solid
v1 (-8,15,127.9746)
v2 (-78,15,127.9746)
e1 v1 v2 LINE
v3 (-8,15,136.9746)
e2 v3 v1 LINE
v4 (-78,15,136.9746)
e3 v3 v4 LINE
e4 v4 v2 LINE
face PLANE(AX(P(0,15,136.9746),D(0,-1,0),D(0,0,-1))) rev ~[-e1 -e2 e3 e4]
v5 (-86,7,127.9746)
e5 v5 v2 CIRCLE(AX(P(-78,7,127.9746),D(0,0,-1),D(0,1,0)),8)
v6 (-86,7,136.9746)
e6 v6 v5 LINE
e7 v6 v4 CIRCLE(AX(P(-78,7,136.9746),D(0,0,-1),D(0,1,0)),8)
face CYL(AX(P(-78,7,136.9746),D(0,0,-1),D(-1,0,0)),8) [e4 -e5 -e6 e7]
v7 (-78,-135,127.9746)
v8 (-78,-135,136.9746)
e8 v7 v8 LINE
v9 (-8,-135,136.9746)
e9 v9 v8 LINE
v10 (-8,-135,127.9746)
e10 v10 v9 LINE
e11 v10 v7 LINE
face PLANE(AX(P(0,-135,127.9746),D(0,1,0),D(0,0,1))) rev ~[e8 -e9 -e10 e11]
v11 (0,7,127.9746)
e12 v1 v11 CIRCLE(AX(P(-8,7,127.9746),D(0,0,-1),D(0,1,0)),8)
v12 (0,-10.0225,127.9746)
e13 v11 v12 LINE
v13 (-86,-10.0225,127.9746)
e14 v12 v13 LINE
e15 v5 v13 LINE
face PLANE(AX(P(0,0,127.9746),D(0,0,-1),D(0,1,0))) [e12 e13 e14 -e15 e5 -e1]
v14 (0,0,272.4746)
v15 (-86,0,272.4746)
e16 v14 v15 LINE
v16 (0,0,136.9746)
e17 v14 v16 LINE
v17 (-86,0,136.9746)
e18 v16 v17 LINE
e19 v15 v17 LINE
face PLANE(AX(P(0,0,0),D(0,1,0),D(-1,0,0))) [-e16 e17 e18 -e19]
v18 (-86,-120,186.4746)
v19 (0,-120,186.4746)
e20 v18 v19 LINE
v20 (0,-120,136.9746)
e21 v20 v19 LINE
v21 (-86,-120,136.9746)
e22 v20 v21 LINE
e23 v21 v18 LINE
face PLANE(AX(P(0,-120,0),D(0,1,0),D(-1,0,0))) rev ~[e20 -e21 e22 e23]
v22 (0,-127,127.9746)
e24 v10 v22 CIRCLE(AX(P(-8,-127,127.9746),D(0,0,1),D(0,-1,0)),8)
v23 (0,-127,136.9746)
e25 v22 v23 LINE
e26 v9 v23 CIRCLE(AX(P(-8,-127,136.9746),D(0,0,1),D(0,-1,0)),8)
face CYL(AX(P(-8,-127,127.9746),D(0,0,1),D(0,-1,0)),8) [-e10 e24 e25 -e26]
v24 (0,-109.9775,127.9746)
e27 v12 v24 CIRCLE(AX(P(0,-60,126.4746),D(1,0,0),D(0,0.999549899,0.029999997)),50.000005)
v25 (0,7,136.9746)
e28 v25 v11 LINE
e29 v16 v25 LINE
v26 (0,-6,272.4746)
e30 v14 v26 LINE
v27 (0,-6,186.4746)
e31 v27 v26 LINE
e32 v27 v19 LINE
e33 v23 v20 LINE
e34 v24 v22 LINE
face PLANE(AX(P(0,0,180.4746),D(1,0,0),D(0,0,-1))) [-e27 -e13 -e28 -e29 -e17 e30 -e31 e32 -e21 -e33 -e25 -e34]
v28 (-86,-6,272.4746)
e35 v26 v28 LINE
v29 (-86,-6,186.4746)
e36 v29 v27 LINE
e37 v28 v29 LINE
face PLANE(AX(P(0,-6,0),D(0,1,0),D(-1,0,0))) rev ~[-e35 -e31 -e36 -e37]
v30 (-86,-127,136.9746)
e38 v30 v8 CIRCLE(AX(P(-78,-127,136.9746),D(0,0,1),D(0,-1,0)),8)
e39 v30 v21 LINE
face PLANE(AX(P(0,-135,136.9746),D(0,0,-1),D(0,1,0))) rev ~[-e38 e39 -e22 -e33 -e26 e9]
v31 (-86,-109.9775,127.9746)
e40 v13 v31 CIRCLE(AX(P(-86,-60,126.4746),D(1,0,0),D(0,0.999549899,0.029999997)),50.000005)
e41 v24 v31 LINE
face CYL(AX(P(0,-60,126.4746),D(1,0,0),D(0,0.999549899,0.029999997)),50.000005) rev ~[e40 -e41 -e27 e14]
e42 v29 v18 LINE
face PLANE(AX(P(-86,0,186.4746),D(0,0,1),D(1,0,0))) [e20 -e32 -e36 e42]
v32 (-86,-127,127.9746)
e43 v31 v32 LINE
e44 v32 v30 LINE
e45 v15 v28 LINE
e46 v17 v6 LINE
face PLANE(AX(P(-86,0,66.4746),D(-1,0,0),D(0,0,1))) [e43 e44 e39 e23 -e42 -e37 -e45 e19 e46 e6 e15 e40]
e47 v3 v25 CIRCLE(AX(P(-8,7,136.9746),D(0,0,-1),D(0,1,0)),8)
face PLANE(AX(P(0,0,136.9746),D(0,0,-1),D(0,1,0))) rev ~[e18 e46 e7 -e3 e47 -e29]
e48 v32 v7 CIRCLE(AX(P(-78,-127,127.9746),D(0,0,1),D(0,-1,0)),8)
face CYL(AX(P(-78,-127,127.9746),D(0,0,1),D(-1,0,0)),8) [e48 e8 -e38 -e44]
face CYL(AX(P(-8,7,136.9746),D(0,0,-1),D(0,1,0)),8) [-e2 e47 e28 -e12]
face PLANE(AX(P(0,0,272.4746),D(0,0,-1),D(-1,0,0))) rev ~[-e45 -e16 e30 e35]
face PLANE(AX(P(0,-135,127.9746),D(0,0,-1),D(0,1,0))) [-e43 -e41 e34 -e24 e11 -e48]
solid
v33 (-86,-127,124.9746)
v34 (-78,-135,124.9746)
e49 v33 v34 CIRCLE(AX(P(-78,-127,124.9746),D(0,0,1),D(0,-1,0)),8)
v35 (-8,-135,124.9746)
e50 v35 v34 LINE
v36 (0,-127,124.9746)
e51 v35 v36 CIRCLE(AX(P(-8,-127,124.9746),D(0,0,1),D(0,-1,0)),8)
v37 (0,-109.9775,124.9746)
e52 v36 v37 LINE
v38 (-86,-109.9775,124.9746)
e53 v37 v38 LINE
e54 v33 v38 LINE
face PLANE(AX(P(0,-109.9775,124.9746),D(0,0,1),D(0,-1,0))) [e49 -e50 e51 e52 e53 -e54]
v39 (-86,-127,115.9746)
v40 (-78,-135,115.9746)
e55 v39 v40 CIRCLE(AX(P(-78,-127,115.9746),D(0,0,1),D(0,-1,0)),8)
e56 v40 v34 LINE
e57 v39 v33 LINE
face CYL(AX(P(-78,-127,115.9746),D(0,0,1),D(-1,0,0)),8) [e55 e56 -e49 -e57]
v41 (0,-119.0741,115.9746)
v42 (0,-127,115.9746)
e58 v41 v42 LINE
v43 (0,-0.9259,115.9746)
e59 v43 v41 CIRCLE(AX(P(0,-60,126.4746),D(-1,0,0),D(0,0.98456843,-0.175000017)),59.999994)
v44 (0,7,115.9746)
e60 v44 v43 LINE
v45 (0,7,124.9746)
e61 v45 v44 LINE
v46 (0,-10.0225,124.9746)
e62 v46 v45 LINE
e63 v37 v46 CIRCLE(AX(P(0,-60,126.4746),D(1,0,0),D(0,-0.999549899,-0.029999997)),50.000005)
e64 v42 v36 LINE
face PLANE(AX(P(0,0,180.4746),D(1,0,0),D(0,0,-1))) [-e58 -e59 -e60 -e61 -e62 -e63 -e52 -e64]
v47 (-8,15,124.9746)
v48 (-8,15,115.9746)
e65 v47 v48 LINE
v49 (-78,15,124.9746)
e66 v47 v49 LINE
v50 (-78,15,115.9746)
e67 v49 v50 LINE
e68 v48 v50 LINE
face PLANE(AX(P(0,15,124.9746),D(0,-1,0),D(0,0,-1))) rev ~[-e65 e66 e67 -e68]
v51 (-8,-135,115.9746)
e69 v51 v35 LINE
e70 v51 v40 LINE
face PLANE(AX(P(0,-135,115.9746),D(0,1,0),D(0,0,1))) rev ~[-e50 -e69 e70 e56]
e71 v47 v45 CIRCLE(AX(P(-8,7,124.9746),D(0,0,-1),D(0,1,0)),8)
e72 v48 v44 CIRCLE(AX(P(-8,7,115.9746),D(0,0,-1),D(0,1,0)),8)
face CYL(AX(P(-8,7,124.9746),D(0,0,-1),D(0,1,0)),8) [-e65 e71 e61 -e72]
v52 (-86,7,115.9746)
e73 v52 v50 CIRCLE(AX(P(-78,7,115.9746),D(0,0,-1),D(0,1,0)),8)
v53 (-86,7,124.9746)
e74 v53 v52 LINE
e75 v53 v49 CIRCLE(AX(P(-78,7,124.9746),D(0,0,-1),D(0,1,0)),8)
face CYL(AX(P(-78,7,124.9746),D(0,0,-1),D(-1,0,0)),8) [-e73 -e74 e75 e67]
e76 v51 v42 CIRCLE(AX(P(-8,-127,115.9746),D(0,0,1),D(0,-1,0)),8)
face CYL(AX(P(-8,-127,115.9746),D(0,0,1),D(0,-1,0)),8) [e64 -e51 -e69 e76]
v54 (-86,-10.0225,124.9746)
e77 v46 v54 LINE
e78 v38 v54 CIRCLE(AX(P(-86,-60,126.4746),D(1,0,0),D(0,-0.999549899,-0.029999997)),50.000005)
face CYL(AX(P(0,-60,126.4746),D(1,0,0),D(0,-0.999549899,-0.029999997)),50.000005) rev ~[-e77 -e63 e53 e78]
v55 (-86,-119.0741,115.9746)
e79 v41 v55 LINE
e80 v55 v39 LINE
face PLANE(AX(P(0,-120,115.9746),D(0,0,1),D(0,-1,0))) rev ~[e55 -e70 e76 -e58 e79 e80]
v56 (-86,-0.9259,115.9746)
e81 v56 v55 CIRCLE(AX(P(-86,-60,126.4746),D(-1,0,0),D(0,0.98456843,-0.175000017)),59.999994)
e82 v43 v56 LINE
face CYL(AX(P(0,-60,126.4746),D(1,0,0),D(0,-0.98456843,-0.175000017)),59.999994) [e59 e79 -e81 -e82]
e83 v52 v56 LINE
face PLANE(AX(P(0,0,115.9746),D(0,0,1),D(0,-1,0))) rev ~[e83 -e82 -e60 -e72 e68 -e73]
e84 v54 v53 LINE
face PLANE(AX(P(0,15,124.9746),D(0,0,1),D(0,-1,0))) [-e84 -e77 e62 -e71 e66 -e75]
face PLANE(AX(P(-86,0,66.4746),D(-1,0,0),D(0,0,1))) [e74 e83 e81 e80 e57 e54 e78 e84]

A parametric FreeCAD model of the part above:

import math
import FreeCAD as App
import Part
import Sketcher

V = App.Vector


def edges_at(feature, points):
    """Names of the edges that pass closest to the given points."""
    edges = feature.Shape.Edges
    near = lambda p: min(range(len(edges)), key=lambda i: edges[i].distToShape(Part.Vertex(*p))[0])
    return sorted({f"Edge{near(p) + 1}" for p in points})


def add_polygon(sketch, points):
    """Adds a closed chain of lines whose ends are joined by coincident constraints."""
    first, n = sketch.GeometryCount, len(points)
    for a, b in zip(points, points[1:] + points[:1]):
        sketch.addGeometry(Part.LineSegment(App.Vector(*a, 0), App.Vector(*b, 0)), False)
    for i in range(n):
        sketch.addConstraint(Sketcher.Constraint("Coincident", first + i, 2, first + (i + 1) % n, 1))

doc = App.newDocument("Part")
body = doc.addObject("PartDesign::Body", "Body")
body.AllowCompound = True

# Sketch on XZ plane
sketch1 = doc.addObject("Sketcher::SketchObject", "Sketch")
body.addObject(sketch1)
sketch1.AttachmentSupport = (doc.XZ_Plane, [""])
sketch1.MapMode = "FlatFace"
add_polygon(sketch1, [(-86, 272), (0, 272), (0, 186), (-86, 186)])  # lines 0-3
sketch1.addConstraint([
    Sketcher.Constraint("Horizontal", 0),
    Sketcher.Constraint("Vertical", 1),
    Sketcher.Constraint("Horizontal", 2),
    Sketcher.Constraint("Vertical", 3),
    Sketcher.Constraint("PointOnObject", 0, 2, -2),
    Sketcher.Constraint("Equal", 2, 1),
    Sketcher.Constraint("DistanceX", 0, 1, 0, 2, 86.0),
    Sketcher.Constraint("DistanceY", -1, 1, 0, 2, 272.4746),
])
pad1 = doc.addObject("PartDesign::Pad", "Pad")
body.addObject(pad1)
pad1.Profile = sketch1
pad1.Length = 6

# Sketch on XZ plane
sketch2 = doc.addObject("Sketcher::SketchObject", "Sketch001")
body.addObject(sketch2)
sketch2.AttachmentSupport = (doc.XZ_Plane, [""])
sketch2.MapMode = "FlatFace"
add_polygon(sketch2, [(-86, 186), (0, 186), (0, 180), (-86, 180)])  # lines 0-3
sketch2.addConstraint([
    Sketcher.Constraint("Horizontal", 0),
    Sketcher.Constraint("Vertical", 1),
    Sketcher.Constraint("Horizontal", 2),
    Sketcher.Constraint("Vertical", 3),
    Sketcher.Constraint("PointOnObject", 0, 2, -2),
    Sketcher.Constraint("DistanceX", 0, 1, 0, 2, 86.0),
    Sketcher.Constraint("DistanceY", 1, 2, 1, 1, 6.0),
    Sketcher.Constraint("DistanceY", -1, 1, 0, 2, 186.4746),
])
pad2 = doc.addObject("PartDesign::Pad", "Pad001")
body.addObject(pad2)
pad2.Profile = sketch2
pad2.Length = 120

# Sketch on XZ plane
sketch3 = doc.addObject("Sketcher::SketchObject", "Sketch002")
body.addObject(sketch3)
sketch3.AttachmentSupport = (doc.XZ_Plane, [""])
sketch3.MapMode = "FlatFace"
add_polygon(sketch3, [(-86, 180), (0, 180), (0, 66), (-86, 66)])  # lines 0-3
sketch3.addConstraint([
    Sketcher.Constraint("Horizontal", 0),
    Sketcher.Constraint("Vertical", 1),
    Sketcher.Constraint("Horizontal", 2),
    Sketcher.Constraint("Vertical", 3),
    Sketcher.Constraint("PointOnObject", 0, 2, -2),
    Sketcher.Constraint("DistanceX", 0, 1, 0, 2, 86.0),
    Sketcher.Constraint("DistanceY", 1, 2, 1, 1, 114.0),
    Sketcher.Constraint("DistanceY", -1, 1, 0, 2, 180.4746),
])
pad3 = doc.addObject("PartDesign::Pad", "Pad002")
body.addObject(pad3)
pad3.Profile = sketch3
pad3.Length = 120

# Sketch on YZ plane
sketch4 = doc.addObject("Sketcher::SketchObject", "Sketch003")
body.addObject(sketch4)
sketch4.AttachmentSupport = (doc.YZ_Plane, [""])
sketch4.MapMode = "FlatFace"
add_polygon(sketch4, [(15, 128), (15, 137), (0, 137), (0, 128)])  # lines 0-3
add_polygon(sketch4, [(15, 116), (15, 125), (0, 125), (0, 116)])  # lines 4-7
add_polygon(sketch4, [(-120, 128), (-120, 137), (-135, 137), (-135, 128)])  # lines 8-11
add_polygon(sketch4, [(-120, 116), (-120, 125), (-135, 125), (-135, 116)])  # lines 12-15
sketch4.addConstraint([
    Sketcher.Constraint("Vertical", 0),
    Sketcher.Constraint("Horizontal", 1),
    Sketcher.Constraint("Vertical", 2),
    Sketcher.Constraint("Horizontal", 3),
    Sketcher.Constraint("Vertical", 4),
    Sketcher.Constraint("Horizontal", 5),
    Sketcher.Constraint("Vertical", 6),
    Sketcher.Constraint("Horizontal", 7),
    Sketcher.Constraint("Vertical", 8),
    Sketcher.Constraint("Horizontal", 9),
    Sketcher.Constraint("Vertical", 10),
    Sketcher.Constraint("Horizontal", 11),
    Sketcher.Constraint("Vertical", 12),
    Sketcher.Constraint("Horizontal", 13),
    Sketcher.Constraint("Vertical", 14),
    Sketcher.Constraint("Horizontal", 15),
    Sketcher.Constraint("PointOnObject", 1, 2, -2),
    Sketcher.Constraint("PointOnObject", 5, 2, -2),
    Sketcher.Constraint("Horizontal", 1, 2, 8, 2),
    Sketcher.Constraint("Horizontal", 3, 2, 10, 2),
    Sketcher.Constraint("Horizontal", 5, 2, 12, 2),
    Sketcher.Constraint("Horizontal", 7, 2, 14, 2),
    Sketcher.Constraint("Vertical", 3, 2, 4, 2),
    Sketcher.Constraint("Vertical", 11, 2, 12, 2),
    Sketcher.Constraint("Vertical", 10, 2, 13, 2),
    Sketcher.Constraint("Equal", 7, 9),
    Sketcher.Constraint("Equal", 2, 4),
    Sketcher.Constraint("DistanceX", 1, 2, 1, 1, 15.0),
    Sketcher.Constraint("DistanceY", 0, 1, 0, 2, 9.0),
    Sketcher.Constraint("DistanceX", 8, 2, -1, 1, 120.0),
    Sketcher.Constraint("DistanceY", 4, 2, 3, 2, 3.0),
    Sketcher.Constraint("DistanceY", -1, 1, 0, 2, 136.9746),
])
pad4 = doc.addObject("PartDesign::Pad", "Pad003")
body.addObject(pad4)
pad4.Profile = sketch4
pad4.Length = 86
pad4.Reversed = True

# Sketch on YZ plane
sketch5 = doc.addObject("Sketcher::SketchObject", "Sketch004")
body.addObject(sketch5)
sketch5.AttachmentSupport = (doc.YZ_Plane, [""])
sketch5.MapMode = "FlatFace"
sketch5.addGeometry([
    Part.LineSegment(V(15, 125, 0), V(15, 128, 0)),  # 0
    Part.LineSegment(V(15, 128, 0), V(-10, 128, 0)),  # 1
    Part.ArcOfCircle(Part.Circle(V(-60, 126.5, 0), V(0, 0, 1), 50), math.radians(2), math.radians(178)),  # 2
    Part.LineSegment(V(-110, 128, 0), V(-135, 128, 0)),  # 3
    Part.LineSegment(V(-135, 128, 0), V(-135, 125, 0)),  # 4
    Part.LineSegment(V(-135, 125, 0), V(-110, 125, 0)),  # 5
    Part.ArcOfCircle(Part.Circle(V(-60, 126.5, 0), V(0, 0, 1), 50), math.radians(-178), math.radians(-2)),  # 6
    Part.LineSegment(V(-10, 125, 0), V(15, 125, 0)),  # 7
    Part.LineSegment(V(0, 66.5, 0), V(0, 116, 0)),  # 8
    Part.LineSegment(V(0, 116, 0), V(-0.9, 116, 0)),  # 9
    Part.ArcOfCircle(Part.Circle(V(-60, 126.5, 0), V(0, 0, 1), 60), math.radians(-90), math.radians(-10)),  # 10
    Part.LineSegment(V(-60, 66.5, 0), V(0, 66.5, 0)),  # 11
    Part.LineSegment(V(-120, 66.5, 0), V(-60, 66.5, 0)),  # 12
    Part.ArcOfCircle(Part.Circle(V(-60, 126.5, 0), V(0, 0, 1), 60), math.radians(-170), math.radians(-90)),  # 13
    Part.LineSegment(V(-119.1, 116, 0), V(-120, 116, 0)),  # 14
    Part.LineSegment(V(-120, 116, 0), V(-120, 66.5, 0)),  # 15
], False)
sketch5.addConstraint([
    Sketcher.Constraint("Coincident", 0, 2, 1, 1),
    Sketcher.Constraint("Coincident", 1, 2, 2, 1),
    Sketcher.Constraint("Coincident", 2, 2, 3, 1),
    Sketcher.Constraint("Coincident", 3, 2, 4, 1),
    Sketcher.Constraint("Coincident", 4, 2, 5, 1),
    Sketcher.Constraint("Coincident", 5, 2, 6, 1),
    Sketcher.Constraint("Coincident", 6, 2, 7, 1),
    Sketcher.Constraint("Coincident", 7, 2, 0, 1),
    Sketcher.Constraint("Coincident", 8, 2, 9, 1),
    Sketcher.Constraint("Coincident", 9, 2, 10, 2),
    Sketcher.Constraint("Tangent", 10, 1, 11, 1),
    Sketcher.Constraint("Coincident", 11, 2, 8, 1),
    Sketcher.Constraint("Tangent", 12, 2, 13, 2),
    Sketcher.Constraint("Coincident", 13, 1, 14, 1),
    Sketcher.Constraint("Coincident", 14, 2, 15, 1),
    Sketcher.Constraint("Coincident", 15, 2, 12, 1),
    Sketcher.Constraint("Vertical", 0),
    Sketcher.Constraint("Horizontal", 1),
    Sketcher.Constraint("Horizontal", 3),
    Sketcher.Constraint("Vertical", 4),
    Sketcher.Constraint("Horizontal", 5),
    Sketcher.Constraint("Horizontal", 7),
    Sketcher.Constraint("Vertical", 8),
    Sketcher.Constraint("Horizontal", 9),
    Sketcher.Constraint("Horizontal", 11),
    Sketcher.Constraint("Horizontal", 12),
    Sketcher.Constraint("Horizontal", 14),
    Sketcher.Constraint("Vertical", 15),
    Sketcher.Constraint("Coincident", 6, 3, 2, 3),
    Sketcher.Constraint("Coincident", 10, 3, 2, 3),
    Sketcher.Constraint("Coincident", 13, 3, 2, 3),
    Sketcher.Constraint("Equal", 2, 6),
    Sketcher.Constraint("Equal", 10, 13),
    Sketcher.Constraint("PointOnObject", 8, 2, -2),
    Sketcher.Constraint("Horizontal", 1, 2, 2, 2),
    Sketcher.Constraint("Horizontal", 5, 2, 6, 2),
    Sketcher.Constraint("Horizontal", 9, 2, 13, 1),
    Sketcher.Constraint("Vertical", 2, 2, 5, 2),
    Sketcher.Constraint("Equal", 1, 3),
    Sketcher.Constraint("Equal", 11, 12),
    Sketcher.Constraint("Radius", 2, 50.0),
    Sketcher.Constraint("Radius", 10, 60.0),
    Sketcher.Constraint("DistanceX", 11, 1, 11, 2, 60.0),
    Sketcher.Constraint("DistanceY", 0, 1, 0, 2, 3.0),
    Sketcher.Constraint("DistanceY", 8, 1, 8, 2, 49.5),
    Sketcher.Constraint("DistanceX", -1, 1, 0, 2, 15.0),
    Sketcher.Constraint("DistanceY", -1, 1, 2, 3, 126.4746),
])
pocket1 = doc.addObject("PartDesign::Pocket", "Pocket")
body.addObject(pocket1)
pocket1.Profile = sketch5
pocket1.Length = 86
doc.recompute()

fillet = doc.addObject("PartDesign::Fillet", "Fillet")
body.addObject(fillet)
fillet.Base = (pocket1, edges_at(pocket1, [
    (-86, 15, 120.475),
    (-86, 15, 132.475),
    (0, 15, 120.475),
    (0, 15, 132.475),
    (-86, -135, 120.475),
    (-86, -135, 132.475),
    (0, -135, 120.475),
    (0, -135, 132.475),
]))
fillet.Radius = 8

doc.recompute()
